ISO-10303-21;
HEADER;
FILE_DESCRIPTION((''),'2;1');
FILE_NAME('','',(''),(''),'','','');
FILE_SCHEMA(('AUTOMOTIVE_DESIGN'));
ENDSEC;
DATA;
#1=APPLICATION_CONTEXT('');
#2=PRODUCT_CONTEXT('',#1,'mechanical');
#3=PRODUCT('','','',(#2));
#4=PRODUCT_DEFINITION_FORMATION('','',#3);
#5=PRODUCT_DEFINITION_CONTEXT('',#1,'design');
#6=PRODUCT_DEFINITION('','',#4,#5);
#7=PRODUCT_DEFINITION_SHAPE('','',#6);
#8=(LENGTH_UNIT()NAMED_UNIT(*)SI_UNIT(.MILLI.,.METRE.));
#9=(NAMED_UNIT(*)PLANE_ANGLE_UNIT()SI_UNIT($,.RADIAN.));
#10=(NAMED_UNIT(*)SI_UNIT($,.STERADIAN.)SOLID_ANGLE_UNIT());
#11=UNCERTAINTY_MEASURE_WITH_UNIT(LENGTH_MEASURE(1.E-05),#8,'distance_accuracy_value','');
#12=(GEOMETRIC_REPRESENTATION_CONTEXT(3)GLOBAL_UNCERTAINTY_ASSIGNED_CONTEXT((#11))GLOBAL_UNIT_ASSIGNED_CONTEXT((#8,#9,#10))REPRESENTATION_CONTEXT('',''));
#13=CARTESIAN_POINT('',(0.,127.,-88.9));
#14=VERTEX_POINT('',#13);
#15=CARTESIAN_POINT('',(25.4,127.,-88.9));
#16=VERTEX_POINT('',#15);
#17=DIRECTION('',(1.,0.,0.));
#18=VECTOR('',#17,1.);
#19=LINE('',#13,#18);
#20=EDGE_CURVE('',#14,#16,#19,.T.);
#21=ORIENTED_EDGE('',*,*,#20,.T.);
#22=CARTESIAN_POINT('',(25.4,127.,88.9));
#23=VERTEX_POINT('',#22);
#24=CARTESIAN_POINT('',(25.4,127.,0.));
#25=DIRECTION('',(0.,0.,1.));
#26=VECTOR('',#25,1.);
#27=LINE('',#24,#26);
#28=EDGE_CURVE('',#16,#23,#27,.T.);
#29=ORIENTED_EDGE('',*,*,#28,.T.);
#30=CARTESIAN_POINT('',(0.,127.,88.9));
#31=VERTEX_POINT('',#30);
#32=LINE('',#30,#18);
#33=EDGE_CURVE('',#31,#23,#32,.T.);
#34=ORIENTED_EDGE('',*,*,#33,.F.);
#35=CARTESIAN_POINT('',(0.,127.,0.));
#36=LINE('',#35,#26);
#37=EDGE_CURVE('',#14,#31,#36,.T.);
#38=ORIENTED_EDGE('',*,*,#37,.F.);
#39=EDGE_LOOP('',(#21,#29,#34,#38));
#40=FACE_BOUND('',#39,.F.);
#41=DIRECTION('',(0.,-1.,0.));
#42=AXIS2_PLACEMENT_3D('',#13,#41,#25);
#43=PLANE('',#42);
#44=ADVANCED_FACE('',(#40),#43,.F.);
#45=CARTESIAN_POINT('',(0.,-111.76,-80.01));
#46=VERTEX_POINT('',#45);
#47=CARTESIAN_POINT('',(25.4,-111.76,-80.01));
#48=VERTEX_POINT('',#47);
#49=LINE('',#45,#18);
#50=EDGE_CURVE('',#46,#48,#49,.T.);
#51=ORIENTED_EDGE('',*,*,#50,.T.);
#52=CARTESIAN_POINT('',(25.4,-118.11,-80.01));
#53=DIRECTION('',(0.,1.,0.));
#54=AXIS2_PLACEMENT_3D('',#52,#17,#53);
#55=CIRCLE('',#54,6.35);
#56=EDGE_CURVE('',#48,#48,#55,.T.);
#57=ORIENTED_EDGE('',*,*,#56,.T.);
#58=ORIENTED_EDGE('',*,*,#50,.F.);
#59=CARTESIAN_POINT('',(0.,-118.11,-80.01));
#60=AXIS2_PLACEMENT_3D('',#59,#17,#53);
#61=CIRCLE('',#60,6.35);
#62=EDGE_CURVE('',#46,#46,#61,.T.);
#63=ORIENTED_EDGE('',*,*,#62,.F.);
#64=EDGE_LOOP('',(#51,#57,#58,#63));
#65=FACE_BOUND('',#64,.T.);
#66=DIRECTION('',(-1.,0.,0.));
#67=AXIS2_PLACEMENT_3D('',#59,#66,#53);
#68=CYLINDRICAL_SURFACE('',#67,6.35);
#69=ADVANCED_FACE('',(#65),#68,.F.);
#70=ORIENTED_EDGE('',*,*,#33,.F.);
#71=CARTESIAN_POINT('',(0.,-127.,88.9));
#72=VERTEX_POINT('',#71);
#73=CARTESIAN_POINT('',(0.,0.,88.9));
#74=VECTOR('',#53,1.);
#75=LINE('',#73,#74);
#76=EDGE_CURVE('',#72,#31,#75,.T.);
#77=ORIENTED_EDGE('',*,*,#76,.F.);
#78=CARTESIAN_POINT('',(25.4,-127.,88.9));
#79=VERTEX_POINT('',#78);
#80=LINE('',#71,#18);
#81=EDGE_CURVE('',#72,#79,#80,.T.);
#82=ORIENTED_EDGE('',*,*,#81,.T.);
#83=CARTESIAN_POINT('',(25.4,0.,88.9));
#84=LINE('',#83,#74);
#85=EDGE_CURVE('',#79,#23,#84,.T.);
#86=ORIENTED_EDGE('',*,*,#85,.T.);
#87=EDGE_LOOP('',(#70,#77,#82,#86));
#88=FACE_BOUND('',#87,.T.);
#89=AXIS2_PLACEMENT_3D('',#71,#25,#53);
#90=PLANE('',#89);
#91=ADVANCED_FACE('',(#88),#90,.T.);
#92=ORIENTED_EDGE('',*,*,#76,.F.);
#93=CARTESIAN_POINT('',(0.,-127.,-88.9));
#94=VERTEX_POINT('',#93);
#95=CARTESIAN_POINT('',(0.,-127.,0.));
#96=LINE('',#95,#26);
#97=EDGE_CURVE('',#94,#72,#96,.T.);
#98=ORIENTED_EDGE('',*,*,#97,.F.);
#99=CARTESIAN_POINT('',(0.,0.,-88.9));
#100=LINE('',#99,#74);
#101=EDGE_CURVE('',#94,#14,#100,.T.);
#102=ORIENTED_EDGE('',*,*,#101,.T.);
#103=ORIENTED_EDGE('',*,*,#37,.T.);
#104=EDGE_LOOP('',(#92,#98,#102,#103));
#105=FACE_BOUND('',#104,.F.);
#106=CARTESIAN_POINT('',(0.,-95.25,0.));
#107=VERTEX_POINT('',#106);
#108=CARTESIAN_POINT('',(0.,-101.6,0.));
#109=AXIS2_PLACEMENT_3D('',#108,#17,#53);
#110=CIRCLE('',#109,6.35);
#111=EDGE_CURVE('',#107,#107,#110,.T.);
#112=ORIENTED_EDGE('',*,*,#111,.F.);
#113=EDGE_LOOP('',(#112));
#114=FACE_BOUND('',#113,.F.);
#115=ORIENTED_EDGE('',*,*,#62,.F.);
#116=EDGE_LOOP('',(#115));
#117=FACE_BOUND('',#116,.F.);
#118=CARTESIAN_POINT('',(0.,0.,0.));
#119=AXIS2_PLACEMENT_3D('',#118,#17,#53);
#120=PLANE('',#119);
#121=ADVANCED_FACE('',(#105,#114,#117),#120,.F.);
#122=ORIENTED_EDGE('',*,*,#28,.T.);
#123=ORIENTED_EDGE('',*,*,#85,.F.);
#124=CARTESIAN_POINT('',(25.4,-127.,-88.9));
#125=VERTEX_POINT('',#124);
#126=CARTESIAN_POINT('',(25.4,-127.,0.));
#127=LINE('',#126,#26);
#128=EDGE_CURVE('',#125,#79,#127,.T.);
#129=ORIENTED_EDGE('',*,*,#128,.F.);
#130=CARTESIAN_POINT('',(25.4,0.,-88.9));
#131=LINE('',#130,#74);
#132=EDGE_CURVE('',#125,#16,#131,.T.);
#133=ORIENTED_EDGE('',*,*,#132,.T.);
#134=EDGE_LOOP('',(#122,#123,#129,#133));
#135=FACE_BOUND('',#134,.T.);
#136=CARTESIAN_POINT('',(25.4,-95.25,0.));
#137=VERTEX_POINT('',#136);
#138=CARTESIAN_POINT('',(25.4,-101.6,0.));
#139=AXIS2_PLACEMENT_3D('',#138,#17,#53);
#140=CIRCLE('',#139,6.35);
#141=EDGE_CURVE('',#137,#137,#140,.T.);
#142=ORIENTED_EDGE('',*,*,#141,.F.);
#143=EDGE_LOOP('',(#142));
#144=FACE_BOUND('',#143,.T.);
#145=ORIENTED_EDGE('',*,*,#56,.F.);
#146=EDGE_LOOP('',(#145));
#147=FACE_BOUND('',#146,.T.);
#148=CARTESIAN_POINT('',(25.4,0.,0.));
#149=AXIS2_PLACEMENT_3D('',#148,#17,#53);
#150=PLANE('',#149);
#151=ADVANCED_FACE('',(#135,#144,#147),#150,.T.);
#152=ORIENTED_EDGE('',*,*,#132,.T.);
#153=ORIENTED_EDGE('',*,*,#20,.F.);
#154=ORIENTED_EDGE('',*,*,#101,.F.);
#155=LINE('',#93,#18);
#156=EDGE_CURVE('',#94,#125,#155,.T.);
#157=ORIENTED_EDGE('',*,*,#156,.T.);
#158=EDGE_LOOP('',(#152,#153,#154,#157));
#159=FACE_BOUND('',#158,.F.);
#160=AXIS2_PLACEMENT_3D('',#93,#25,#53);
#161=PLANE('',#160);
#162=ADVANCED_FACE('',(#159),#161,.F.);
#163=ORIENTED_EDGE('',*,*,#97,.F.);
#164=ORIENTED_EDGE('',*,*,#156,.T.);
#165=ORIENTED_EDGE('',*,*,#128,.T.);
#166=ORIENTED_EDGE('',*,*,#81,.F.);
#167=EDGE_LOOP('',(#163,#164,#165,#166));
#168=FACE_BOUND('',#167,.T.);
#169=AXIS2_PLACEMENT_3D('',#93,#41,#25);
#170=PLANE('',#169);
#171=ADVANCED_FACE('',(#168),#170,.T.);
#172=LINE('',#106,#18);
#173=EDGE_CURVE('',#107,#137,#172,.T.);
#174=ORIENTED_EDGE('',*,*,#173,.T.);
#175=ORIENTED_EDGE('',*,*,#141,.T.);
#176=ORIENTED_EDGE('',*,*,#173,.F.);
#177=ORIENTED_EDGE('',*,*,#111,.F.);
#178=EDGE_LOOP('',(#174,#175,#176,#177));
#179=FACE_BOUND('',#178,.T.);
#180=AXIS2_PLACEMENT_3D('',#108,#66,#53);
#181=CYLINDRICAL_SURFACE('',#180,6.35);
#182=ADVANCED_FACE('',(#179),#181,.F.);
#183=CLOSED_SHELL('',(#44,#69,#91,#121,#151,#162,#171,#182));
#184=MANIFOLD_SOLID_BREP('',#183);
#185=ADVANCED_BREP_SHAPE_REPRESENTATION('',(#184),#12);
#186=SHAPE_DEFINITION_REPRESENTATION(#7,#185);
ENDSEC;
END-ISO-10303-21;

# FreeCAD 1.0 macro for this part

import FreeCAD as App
import Part
import Sketcher
Q = App.Units.Quantity

doc = App.newDocument("Part")
body = doc.addObject("PartDesign::Body", "Body")

sketch1 = body.newObject("Sketcher::SketchObject", "Sketch")
sketch1.AttachmentSupport = (doc.getObject("YZ_Plane"), [""])
sketch1.MapMode = "FlatFace"
sketch1.addGeometry([
    Part.LineSegment(App.Vector(-127, 88.9, 0), App.Vector(-127, -88.9, 0)),
    Part.LineSegment(App.Vector(-127, -88.9, 0), App.Vector(127, -88.9, 0)),
    Part.LineSegment(App.Vector(127, -88.9, 0), App.Vector(127, 88.9, 0)),
    Part.LineSegment(App.Vector(127, 88.9, 0), App.Vector(-127, 88.9, 0)),
    Part.Circle(App.Vector(-118.11, -80.01, 0), App.Vector(0, 0, 1), 6.35),
    Part.Circle(App.Vector(-101.6, 0, 0), App.Vector(0, 0, 1), 6.35),
], False)
sketch1.addConstraint([
    Sketcher.Constraint("Coincident", 0, 2, 1, 1),
    Sketcher.Constraint("Coincident", 1, 2, 2, 1),
    Sketcher.Constraint("Coincident", 2, 2, 3, 1),
    Sketcher.Constraint("Coincident", 3, 2, 0, 1),
    Sketcher.Constraint("Vertical", 0),
    Sketcher.Constraint("Horizontal", 1),
    Sketcher.Constraint("Vertical", 2),
    Sketcher.Constraint("Horizontal", 3),
    Sketcher.Constraint("Equal", 4, 5),
    Sketcher.Constraint("Symmetric", 0, 2, 2, 2, -1, 1),
    Sketcher.Constraint("PointOnObject", 5, 3, -1),
    Sketcher.Constraint("Diameter", 4, Q("0.5 in")),
    Sketcher.Constraint("DistanceX", 1, 1, 1, 2, Q("10 in")),
    Sketcher.Constraint("DistanceY", 0, 2, 0, 1, Q("7 in")),
    Sketcher.Constraint("DistanceX", 5, 3, -1, 1, Q("4 in")),
    Sketcher.Constraint("DistanceX", 4, 3, -1, 1, Q("4.65 in")),
    Sketcher.Constraint("DistanceY", 4, 3, -1, 1, Q("3.15 in")),
])
pad1 = body.newObject("PartDesign::Pad", "Pad")
pad1.Profile = sketch1
pad1.Length = Q("1 in")

doc.recompute()
